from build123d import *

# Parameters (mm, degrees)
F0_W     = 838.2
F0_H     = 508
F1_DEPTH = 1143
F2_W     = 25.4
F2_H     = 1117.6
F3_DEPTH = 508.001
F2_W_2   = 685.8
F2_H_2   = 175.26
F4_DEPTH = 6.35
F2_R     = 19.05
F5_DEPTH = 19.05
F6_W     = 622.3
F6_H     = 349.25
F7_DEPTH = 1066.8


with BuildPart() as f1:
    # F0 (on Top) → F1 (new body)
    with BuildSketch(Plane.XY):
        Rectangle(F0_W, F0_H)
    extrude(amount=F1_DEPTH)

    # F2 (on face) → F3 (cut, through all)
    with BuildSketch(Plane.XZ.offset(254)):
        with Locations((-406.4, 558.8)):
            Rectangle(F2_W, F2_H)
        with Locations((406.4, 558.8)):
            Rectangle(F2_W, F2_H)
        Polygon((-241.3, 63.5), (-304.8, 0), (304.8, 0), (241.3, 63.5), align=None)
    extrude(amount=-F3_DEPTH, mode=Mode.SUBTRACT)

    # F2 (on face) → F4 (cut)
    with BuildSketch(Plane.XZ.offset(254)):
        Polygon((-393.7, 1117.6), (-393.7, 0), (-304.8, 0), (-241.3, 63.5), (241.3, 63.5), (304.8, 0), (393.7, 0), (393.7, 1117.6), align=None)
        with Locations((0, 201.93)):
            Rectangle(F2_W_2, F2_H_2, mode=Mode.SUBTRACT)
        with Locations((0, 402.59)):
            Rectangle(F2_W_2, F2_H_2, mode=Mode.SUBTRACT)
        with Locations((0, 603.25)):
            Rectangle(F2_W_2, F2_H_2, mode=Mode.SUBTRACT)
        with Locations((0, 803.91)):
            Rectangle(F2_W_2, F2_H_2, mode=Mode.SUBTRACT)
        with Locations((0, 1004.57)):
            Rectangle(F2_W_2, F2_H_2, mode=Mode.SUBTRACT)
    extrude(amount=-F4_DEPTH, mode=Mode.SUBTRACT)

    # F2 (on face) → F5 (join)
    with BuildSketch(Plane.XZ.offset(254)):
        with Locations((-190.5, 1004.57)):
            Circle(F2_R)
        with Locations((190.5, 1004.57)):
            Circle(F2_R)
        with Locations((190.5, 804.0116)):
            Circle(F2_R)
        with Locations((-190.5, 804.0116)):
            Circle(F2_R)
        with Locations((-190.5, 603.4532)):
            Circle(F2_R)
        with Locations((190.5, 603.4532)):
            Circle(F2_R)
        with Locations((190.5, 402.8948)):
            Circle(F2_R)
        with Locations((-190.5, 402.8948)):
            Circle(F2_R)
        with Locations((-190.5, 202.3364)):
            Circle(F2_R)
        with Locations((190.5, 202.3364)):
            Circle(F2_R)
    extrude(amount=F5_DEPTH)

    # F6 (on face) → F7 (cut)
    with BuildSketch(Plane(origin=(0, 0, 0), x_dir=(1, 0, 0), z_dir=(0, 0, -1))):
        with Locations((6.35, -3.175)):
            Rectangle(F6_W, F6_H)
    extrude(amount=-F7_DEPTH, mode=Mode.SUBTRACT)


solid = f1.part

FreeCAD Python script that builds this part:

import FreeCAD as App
import Part
import Sketcher
from FreeCAD import Vector
Q = App.Units.Quantity


def add_polygon(sketch, points):
    """Adds a closed chain of lines whose ends are joined by coincident constraints."""
    first, n = sketch.GeometryCount, len(points)
    for a, b in zip(points, points[1:] + points[:1]):
        sketch.addGeometry(Part.LineSegment(App.Vector(*a, 0), App.Vector(*b, 0)), False)
    for i in range(n):
        sketch.addConstraint(Sketcher.Constraint("Coincident", first + i, 2, first + (i + 1) % n, 1))

doc = App.newDocument("Part")
body = doc.addObject("PartDesign::Body", "Body")

# Sketch on XY plane
sketch1 = doc.addObject("Sketcher::SketchObject", "Sketch")
body.addObject(sketch1)
sketch1.AttachmentSupport = (doc.XY_Plane, [""])
sketch1.MapMode = "FlatFace"
add_polygon(sketch1, [(-419.1, 254), (-419.1, -254), (419.1, -254), (419.1, 254)])  # lines 0-3
sketch1.addConstraint([
    Sketcher.Constraint("Vertical", 0),
    Sketcher.Constraint("Horizontal", 1),
    Sketcher.Constraint("Vertical", 2),
    Sketcher.Constraint("Horizontal", 3),
    Sketcher.Constraint("Symmetric", 0, 2, 2, 2, -1, 1),
    Sketcher.Constraint("DistanceX", 1, 1, 1, 2, Q("33 in")),
    Sketcher.Constraint("DistanceY", 0, 2, 0, 1, Q("20 in")),
])
pad1 = doc.addObject("PartDesign::Pad", "Pad")
body.addObject(pad1)
pad1.Profile = sketch1
pad1.Length = Q("45 in")

# Sketch on XZ plane
sketch2 = doc.addObject("Sketcher::SketchObject", "Sketch001")
body.addObject(sketch2)
sketch2.AttachmentSupport = (doc.XZ_Plane, [""])
sketch2.MapMode = "FlatFace"
sketch2.AttachmentOffset = App.Placement(Vector(0, 0, 10 * 25.4), App.Rotation())
add_polygon(sketch2, [(-419.1, 1117.6), (-419.1, 0), (-393.7, 0), (-393.7, 1117.6)])  # lines 0-3
add_polygon(sketch2, [(393.7, 1117.6), (393.7, 0), (419.1, 0), (419.1, 1117.6)])  # lines 4-7
add_polygon(sketch2, [(-241.3, 63.5), (-304.8, 0), (304.8, 0), (241.3, 63.5)])  # lines 8-11
sketch2.addConstraint([
    Sketcher.Constraint("Vertical", 0),
    Sketcher.Constraint("Horizontal", 1),
    Sketcher.Constraint("Vertical", 2),
    Sketcher.Constraint("Horizontal", 3),
    Sketcher.Constraint("Vertical", 4),
    Sketcher.Constraint("Horizontal", 5),
    Sketcher.Constraint("Vertical", 6),
    Sketcher.Constraint("Horizontal", 7),
    Sketcher.Constraint("Horizontal", 9),
    Sketcher.Constraint("Horizontal", 11),
    Sketcher.Constraint("Symmetric", 1, 2, 4, 2, -1, 1),
    Sketcher.Constraint("Symmetric", 8, 2, 9, 2, -1, 1),
    Sketcher.Constraint("Symmetric", 0, 2, 5, 2, -2),
    Sketcher.Constraint("Perpendicular", 8, 10),
    Sketcher.Constraint("Horizontal", 3, 2, 6, 2),
    Sketcher.Constraint("Equal", 8, 10),
    Sketcher.Constraint("DistanceX", 1, 1, 1, 2, Q("1 in")),
    Sketcher.Constraint("DistanceX", 9, 1, 9, 2, Q("24 in")),
    Sketcher.Constraint("DistanceX", 11, 2, 11, 1, Q("19 in")),
    Sketcher.Constraint("DistanceY", 0, 2, 0, 1, Q("44 in")),
    Sketcher.Constraint("DistanceX", 1, 2, 4, 2, Q("31 in")),
])
pocket1 = doc.addObject("PartDesign::Pocket", "Pocket")
body.addObject(pocket1)
pocket1.Profile = sketch2
pocket1.Type = "ThroughAll"

# Sketch on XZ plane
sketch3 = doc.addObject("Sketcher::SketchObject", "Sketch002")
body.addObject(sketch3)
sketch3.AttachmentSupport = (doc.XZ_Plane, [""])
sketch3.MapMode = "FlatFace"
sketch3.AttachmentOffset = App.Placement(Vector(0, 0, 10 * 25.4), App.Rotation())
add_polygon(sketch3, [(-393.7, 1117.6), (-393.7, 0), (-304.8, 0), (-241.3, 63.5), (241.3, 63.5), (304.8, 0), (393.7, 0), (393.7, 1117.6)])  # lines 0-7
add_polygon(sketch3, [(342.9, 114.3), (-342.9, 114.3), (-342.9, 289.56), (342.9, 289.56)])  # lines 8-11
add_polygon(sketch3, [(342.9, 314.96), (-342.9, 314.96), (-342.9, 490.22), (342.9, 490.22)])  # lines 12-15
add_polygon(sketch3, [(342.9, 515.62), (-342.9, 515.62), (-342.9, 690.88), (342.9, 690.88)])  # lines 16-19
add_polygon(sketch3, [(342.9, 716.28), (-342.9, 716.28), (-342.9, 891.54), (342.9, 891.54)])  # lines 20-23
add_polygon(sketch3, [(342.9, 916.94), (-342.9, 916.94), (-342.9, 1092.2), (342.9, 1092.2)])  # lines 24-27
sketch3.addConstraint([
    Sketcher.Constraint("Vertical", 0),
    Sketcher.Constraint("Horizontal", 1),
    Sketcher.Constraint("Horizontal", 3),
    Sketcher.Constraint("Horizontal", 5),
    Sketcher.Constraint("Vertical", 6),
    Sketcher.Constraint("Horizontal", 7),
    Sketcher.Constraint("Horizontal", 8),
    Sketcher.Constraint("Vertical", 9),
    Sketcher.Constraint("Horizontal", 10),
    Sketcher.Constraint("Vertical", 11),
    Sketcher.Constraint("Horizontal", 12),
    Sketcher.Constraint("Vertical", 13),
    Sketcher.Constraint("Horizontal", 14),
    Sketcher.Constraint("Vertical", 15),
    Sketcher.Constraint("Horizontal", 16),
    Sketcher.Constraint("Vertical", 17),
    Sketcher.Constraint("Horizontal", 18),
    Sketcher.Constraint("Vertical", 19),
    Sketcher.Constraint("Horizontal", 20),
    Sketcher.Constraint("Vertical", 21),
    Sketcher.Constraint("Horizontal", 22),
    Sketcher.Constraint("Vertical", 23),
    Sketcher.Constraint("Horizontal", 24),
    Sketcher.Constraint("Vertical", 25),
    Sketcher.Constraint("Horizontal", 26),
    Sketcher.Constraint("Vertical", 27),
    Sketcher.Constraint("Symmetric", 1, 2, 4, 2, -1, 1),
    Sketcher.Constraint("Symmetric", 0, 2, 5, 2, -2),
    Sketcher.Constraint("Perpendicular", 2, 4),
    Sketcher.Constraint("Vertical", 9, 2, 12, 2),
    Sketcher.Constraint("Vertical", 11, 2, 14, 2),
    Sketcher.Constraint("Vertical", 13, 2, 16, 2),
    Sketcher.Constraint("Vertical", 15, 2, 18, 2),
    Sketcher.Constraint("Vertical", 17, 2, 20, 2),
    Sketcher.Constraint("Vertical", 19, 2, 22, 2),
    Sketcher.Constraint("Vertical", 21, 2, 24, 2),
    Sketcher.Constraint("Vertical", 23, 2, 26, 2),
    Sketcher.Constraint("Equal", 11, 13),
    Sketcher.Constraint("Equal", 15, 17),
    Sketcher.Constraint("Equal", 19, 21),
    Sketcher.Constraint("Equal", 23, 25),
    Sketcher.Constraint("Equal", 2, 4),
    Sketcher.Constraint("DistanceX", 3, 1, 3, 2, Q("19 in")),
    Sketcher.Constraint("DistanceX", 7, 2, 7, 1, Q("31 in")),
    Sketcher.Constraint("DistanceX", 8, 2, 8, 1, Q("27 in")),
    Sketcher.Constraint("DistanceY", 0, 2, 0, 1, Q("44 in")),
    Sketcher.Constraint("DistanceX", 1, 1, 1, 2, Q("3.5 in")),
    Sketcher.Constraint("DistanceY", 9, 1, 9, 2, Q("6.9 in")),
    Sketcher.Constraint("DistanceY", -1, 1, 25, 2, Q("43 in")),
    Sketcher.Constraint("DistanceX", 8, 2, 2, 2, Q("4 in")),
    Sketcher.Constraint("DistanceY", 2, 2, 8, 2, Q("2 in")),
    Sketcher.Constraint("DistanceY", 9, 2, 12, 2, Q("1 in")),
    Sketcher.Constraint("DistanceY", 13, 2, 16, 2, Q("1 in")),
    Sketcher.Constraint("DistanceY", 17, 2, 20, 2, Q("1 in")),
])
pocket2 = doc.addObject("PartDesign::Pocket", "Pocket001")
body.addObject(pocket2)
pocket2.Profile = sketch3
pocket2.Length = Q("0.25 in")

# Sketch on XZ plane
sketch4 = doc.addObject("Sketcher::SketchObject", "Sketch003")
body.addObject(sketch4)
sketch4.AttachmentSupport = (doc.XZ_Plane, [""])
sketch4.MapMode = "FlatFace"
sketch4.AttachmentOffset = App.Placement(Vector(0, 0, 10 * 25.4), App.Rotation())
sketch4.addGeometry([
    Part.Circle(Vector(-190.5, 1004.57, 0), Vector(0, 0, 1), 19.05),  # 0
    Part.Circle(Vector(190.5, 1004.57, 0), Vector(0, 0, 1), 19.05),  # 1
    Part.Circle(Vector(190.5, 804.0116, 0), Vector(0, 0, 1), 19.05),  # 2
    Part.Circle(Vector(-190.5, 804.0116, 0), Vector(0, 0, 1), 19.05),  # 3
    Part.Circle(Vector(-190.5, 603.4532, 0), Vector(0, 0, 1), 19.05),  # 4
    Part.Circle(Vector(190.5, 603.4532, 0), Vector(0, 0, 1), 19.05),  # 5
    Part.Circle(Vector(190.5, 402.8948, 0), Vector(0, 0, 1), 19.05),  # 6
    Part.Circle(Vector(-190.5, 402.8948, 0), Vector(0, 0, 1), 19.05),  # 7
    Part.Circle(Vector(-190.5, 202.3364, 0), Vector(0, 0, 1), 19.05),  # 8
    Part.Circle(Vector(190.5, 202.3364, 0), Vector(0, 0, 1), 19.05),  # 9
], False)
sketch4.addConstraint([
    Sketcher.Constraint("Equal", 0, 1),
    Sketcher.Constraint("Equal", 1, 2),
    Sketcher.Constraint("Equal", 2, 3),
    Sketcher.Constraint("Equal", 3, 4),
    Sketcher.Constraint("Equal", 4, 5),
    Sketcher.Constraint("Equal", 5, 6),
    Sketcher.Constraint("Equal", 6, 7),
    Sketcher.Constraint("Equal", 7, 8),
    Sketcher.Constraint("Equal", 8, 9),
    Sketcher.Constraint("Symmetric", 0, 3, 1, 3, -2),
    Sketcher.Constraint("Symmetric", 2, 3, 3, 3, -2),
    Sketcher.Constraint("Symmetric", 4, 3, 5, 3, -2),
    Sketcher.Constraint("Symmetric", 6, 3, 7, 3, -2),
    Sketcher.Constraint("Symmetric", 8, 3, 9, 3, -2),
    Sketcher.Constraint("Vertical", 1, 3, 2, 3),
    Sketcher.Constraint("Vertical", 3, 3, 4, 3),
    Sketcher.Constraint("Vertical", 5, 3, 6, 3),
    Sketcher.Constraint("Vertical", 7, 3, 8, 3),
    Sketcher.Constraint("Diameter", 0, Q("1.5 in")),
    Sketcher.Constraint("DistanceX", 0, 3, 1, 3, Q("15 in")),
    Sketcher.Constraint("DistanceY", -1, 1, 0, 3, Q("39.55 in")),
    Sketcher.Constraint("DistanceY", -1, 1, 2, 3, Q("31.654 in")),
    Sketcher.Constraint("DistanceY", -1, 1, 4, 3, Q("23.758 in")),
    Sketcher.Constraint("DistanceY", -1, 1, 6, 3, Q("15.862 in")),
    Sketcher.Constraint("DistanceY", -1, 1, 8, 3, Q("7.966 in")),
])
pad2 = doc.addObject("PartDesign::Pad", "Pad001")
body.addObject(pad2)
pad2.Profile = sketch4
pad2.Length = Q("0.75 in")

# Sketch on XY plane
sketch5 = doc.addObject("Sketcher::SketchObject", "Sketch004")
body.addObject(sketch5)
sketch5.AttachmentSupport = (doc.XY_Plane, [""])
sketch5.MapMode = "FlatFace"
add_polygon(sketch5, [(-304.8, -171.45), (-304.8, 177.8), (317.5, 177.8), (317.5, -171.45)])  # lines 0-3
sketch5.addConstraint([
    Sketcher.Constraint("Vertical", 0),
    Sketcher.Constraint("Horizontal", 1),
    Sketcher.Constraint("Vertical", 2),
    Sketcher.Constraint("Horizontal", 3),
    Sketcher.Constraint("DistanceX", 1, 1, 1, 2, Q("24.5 in")),
    Sketcher.Constraint("DistanceX", 0, 2, -1, 1, Q("12 in")),
    Sketcher.Constraint("DistanceY", -1, 1, 0, 2, Q("7 in")),
    Sketcher.Constraint("DistanceY", 0, 1, 0, 2, Q("13.75 in")),
])
pocket3 = doc.addObject("PartDesign::Pocket", "Pocket002")
body.addObject(pocket3)
pocket3.Profile = sketch5
pocket3.Length = Q("42 in")
pocket3.Reversed = True

doc.recompute()
